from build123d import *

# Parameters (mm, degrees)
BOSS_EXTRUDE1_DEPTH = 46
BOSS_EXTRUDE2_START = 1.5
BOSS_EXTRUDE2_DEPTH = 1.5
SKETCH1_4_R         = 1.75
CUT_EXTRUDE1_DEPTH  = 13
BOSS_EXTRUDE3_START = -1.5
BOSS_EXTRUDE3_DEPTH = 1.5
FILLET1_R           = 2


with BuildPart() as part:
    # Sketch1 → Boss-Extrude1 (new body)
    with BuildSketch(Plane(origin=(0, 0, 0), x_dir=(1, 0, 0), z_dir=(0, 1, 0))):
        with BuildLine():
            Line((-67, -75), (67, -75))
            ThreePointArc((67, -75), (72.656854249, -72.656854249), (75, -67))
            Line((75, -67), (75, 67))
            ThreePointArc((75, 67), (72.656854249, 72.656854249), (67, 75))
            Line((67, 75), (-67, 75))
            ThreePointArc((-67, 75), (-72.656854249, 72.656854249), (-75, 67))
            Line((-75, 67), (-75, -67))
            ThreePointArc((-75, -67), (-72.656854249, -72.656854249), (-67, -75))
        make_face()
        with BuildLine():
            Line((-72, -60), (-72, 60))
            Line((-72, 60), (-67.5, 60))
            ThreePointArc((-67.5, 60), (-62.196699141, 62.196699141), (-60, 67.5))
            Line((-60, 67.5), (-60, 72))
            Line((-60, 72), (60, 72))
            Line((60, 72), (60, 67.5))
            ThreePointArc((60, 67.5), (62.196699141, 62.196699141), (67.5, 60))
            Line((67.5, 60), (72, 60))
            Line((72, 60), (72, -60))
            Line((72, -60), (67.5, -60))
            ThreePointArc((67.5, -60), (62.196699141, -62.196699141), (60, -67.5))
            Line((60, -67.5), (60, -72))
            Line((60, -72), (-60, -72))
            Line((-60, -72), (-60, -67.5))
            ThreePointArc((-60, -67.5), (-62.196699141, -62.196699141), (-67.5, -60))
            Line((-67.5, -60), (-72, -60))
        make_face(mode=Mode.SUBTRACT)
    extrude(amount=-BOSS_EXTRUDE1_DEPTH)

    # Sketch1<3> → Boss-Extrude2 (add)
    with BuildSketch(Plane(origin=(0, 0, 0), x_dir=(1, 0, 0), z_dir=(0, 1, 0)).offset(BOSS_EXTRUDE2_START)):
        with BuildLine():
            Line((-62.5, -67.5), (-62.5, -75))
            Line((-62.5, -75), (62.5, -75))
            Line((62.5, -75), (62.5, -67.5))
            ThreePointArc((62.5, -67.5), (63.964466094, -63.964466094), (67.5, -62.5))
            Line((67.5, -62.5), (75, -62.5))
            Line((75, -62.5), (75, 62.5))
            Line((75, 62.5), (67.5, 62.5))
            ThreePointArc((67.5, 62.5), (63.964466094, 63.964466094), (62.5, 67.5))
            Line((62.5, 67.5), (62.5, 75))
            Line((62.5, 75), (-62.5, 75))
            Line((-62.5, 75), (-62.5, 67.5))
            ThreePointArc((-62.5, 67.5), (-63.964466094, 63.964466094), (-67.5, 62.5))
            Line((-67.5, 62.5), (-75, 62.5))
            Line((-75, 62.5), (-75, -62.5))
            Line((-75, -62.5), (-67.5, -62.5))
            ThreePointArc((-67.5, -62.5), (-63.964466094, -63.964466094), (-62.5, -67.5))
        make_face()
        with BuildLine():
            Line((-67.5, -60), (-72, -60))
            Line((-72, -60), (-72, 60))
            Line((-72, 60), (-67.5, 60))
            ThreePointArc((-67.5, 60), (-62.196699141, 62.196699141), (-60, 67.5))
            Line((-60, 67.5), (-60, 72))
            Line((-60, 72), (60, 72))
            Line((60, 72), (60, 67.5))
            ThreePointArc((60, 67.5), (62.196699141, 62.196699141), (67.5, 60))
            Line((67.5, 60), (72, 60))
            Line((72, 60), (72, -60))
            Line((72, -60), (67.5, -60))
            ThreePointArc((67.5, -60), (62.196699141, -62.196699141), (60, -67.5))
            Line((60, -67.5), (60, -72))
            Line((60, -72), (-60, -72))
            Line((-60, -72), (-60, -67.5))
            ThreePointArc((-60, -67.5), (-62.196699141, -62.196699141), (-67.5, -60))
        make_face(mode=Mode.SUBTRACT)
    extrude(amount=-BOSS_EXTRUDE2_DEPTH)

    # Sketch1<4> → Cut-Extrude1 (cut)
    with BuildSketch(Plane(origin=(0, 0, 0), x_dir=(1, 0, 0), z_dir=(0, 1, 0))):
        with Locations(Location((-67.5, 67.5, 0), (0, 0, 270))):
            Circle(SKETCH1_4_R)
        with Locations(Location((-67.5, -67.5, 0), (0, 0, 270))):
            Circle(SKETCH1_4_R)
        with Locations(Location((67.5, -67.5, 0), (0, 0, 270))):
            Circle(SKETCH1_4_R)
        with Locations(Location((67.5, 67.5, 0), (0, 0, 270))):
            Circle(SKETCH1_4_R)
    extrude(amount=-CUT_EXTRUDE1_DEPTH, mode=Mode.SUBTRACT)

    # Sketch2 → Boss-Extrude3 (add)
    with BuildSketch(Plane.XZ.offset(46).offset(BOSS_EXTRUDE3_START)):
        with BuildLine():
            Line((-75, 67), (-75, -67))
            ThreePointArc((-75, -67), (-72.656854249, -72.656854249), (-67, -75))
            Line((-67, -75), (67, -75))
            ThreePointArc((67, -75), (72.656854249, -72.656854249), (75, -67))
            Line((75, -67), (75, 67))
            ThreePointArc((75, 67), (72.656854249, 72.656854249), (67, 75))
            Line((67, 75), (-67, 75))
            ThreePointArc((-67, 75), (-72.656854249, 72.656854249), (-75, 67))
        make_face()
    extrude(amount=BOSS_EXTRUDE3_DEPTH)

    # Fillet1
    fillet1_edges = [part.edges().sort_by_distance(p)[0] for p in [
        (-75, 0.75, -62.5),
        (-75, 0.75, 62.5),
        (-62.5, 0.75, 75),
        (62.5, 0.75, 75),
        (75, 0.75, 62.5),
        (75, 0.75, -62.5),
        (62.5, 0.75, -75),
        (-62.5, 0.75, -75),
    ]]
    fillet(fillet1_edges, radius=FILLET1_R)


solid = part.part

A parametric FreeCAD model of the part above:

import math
import FreeCAD as App
import Part
import Sketcher
from FreeCAD import Vector


def edges_at(feature, points):
    """Names of the edges that pass closest to the given points."""
    edges = feature.Shape.Edges
    near = lambda p: min(range(len(edges)), key=lambda i: edges[i].distToShape(Part.Vertex(*p))[0])
    return sorted({f"Edge{near(p) + 1}" for p in points})

doc = App.newDocument("Part")
body = doc.addObject("PartDesign::Body", "Body")

# Sketch on XZ plane
sketch1 = doc.addObject("Sketcher::SketchObject", "Sketch")
body.addObject(sketch1)
sketch1.AttachmentSupport = (doc.XZ_Plane, [""])
sketch1.MapMode = "FlatFace"
sketch1.addGeometry(Part.LineSegment(Vector(-67, 75, 0), Vector(67, 75, 0)), False)
sketch1.addGeometry(Part.ArcOfCircle(Part.Circle(Vector(67, 67, 0), Vector(0, 0, 1), 8), math.radians(0), math.radians(90)), False)
sketch1.addGeometry(Part.LineSegment(Vector(75, 67, 0), Vector(75, -67, 0)), False)
sketch1.addGeometry(Part.ArcOfCircle(Part.Circle(Vector(67, -67, 0), Vector(0, 0, 1), 8), math.radians(-90), math.radians(0)), False)
sketch1.addGeometry(Part.LineSegment(Vector(67, -75, 0), Vector(-67, -75, 0)), False)
sketch1.addGeometry(Part.ArcOfCircle(Part.Circle(Vector(-67, -67, 0), Vector(0, 0, 1), 8), math.radians(-180), math.radians(-90)), False)
sketch1.addGeometry(Part.LineSegment(Vector(-75, -67, 0), Vector(-75, 67, 0)), False)
sketch1.addGeometry(Part.ArcOfCircle(Part.Circle(Vector(-67, 67, 0), Vector(0, 0, 1), 8), math.radians(90), math.radians(180)), False)
sketch1.addGeometry(Part.LineSegment(Vector(-67.5, 60, 0), Vector(-72, 60, 0)), False)
sketch1.addGeometry(Part.LineSegment(Vector(-72, 60, 0), Vector(-72, -60, 0)), False)
sketch1.addGeometry(Part.LineSegment(Vector(-72, -60, 0), Vector(-67.5, -60, 0)), False)
sketch1.addGeometry(Part.ArcOfCircle(Part.Circle(Vector(-67.5, -67.5, 0), Vector(0, 0, 1), 7.5), math.radians(0), math.radians(90)), False)
sketch1.addGeometry(Part.LineSegment(Vector(-60, -67.5, 0), Vector(-60, -72, 0)), False)
sketch1.addGeometry(Part.LineSegment(Vector(-60, -72, 0), Vector(60, -72, 0)), False)
sketch1.addGeometry(Part.LineSegment(Vector(60, -72, 0), Vector(60, -67.5, 0)), False)
sketch1.addGeometry(Part.ArcOfCircle(Part.Circle(Vector(67.5, -67.5, 0), Vector(0, 0, 1), 7.5), math.radians(90), math.radians(180)), False)
sketch1.addGeometry(Part.LineSegment(Vector(67.5, -60, 0), Vector(72, -60, 0)), False)
sketch1.addGeometry(Part.LineSegment(Vector(72, -60, 0), Vector(72, 60, 0)), False)
sketch1.addGeometry(Part.LineSegment(Vector(72, 60, 0), Vector(67.5, 60, 0)), False)
sketch1.addGeometry(Part.ArcOfCircle(Part.Circle(Vector(67.5, 67.5, 0), Vector(0, 0, 1), 7.5), math.radians(180), math.radians(270)), False)
sketch1.addGeometry(Part.LineSegment(Vector(60, 67.5, 0), Vector(60, 72, 0)), False)
sketch1.addGeometry(Part.LineSegment(Vector(60, 72, 0), Vector(-60, 72, 0)), False)
sketch1.addGeometry(Part.LineSegment(Vector(-60, 72, 0), Vector(-60, 67.5, 0)), False)
sketch1.addGeometry(Part.ArcOfCircle(Part.Circle(Vector(-67.5, 67.5, 0), Vector(0, 0, 1), 7.5), math.radians(-90), math.radians(0)), False)
sketch1.addConstraint(Sketcher.Constraint("Tangent", 0, 2, 1, 2))
sketch1.addConstraint(Sketcher.Constraint("Tangent", 1, 1, 2, 1))
sketch1.addConstraint(Sketcher.Constraint("Tangent", 2, 2, 3, 2))
sketch1.addConstraint(Sketcher.Constraint("Tangent", 3, 1, 4, 1))
sketch1.addConstraint(Sketcher.Constraint("Tangent", 4, 2, 5, 2))
sketch1.addConstraint(Sketcher.Constraint("Tangent", 5, 1, 6, 1))
sketch1.addConstraint(Sketcher.Constraint("Tangent", 6, 2, 7, 2))
sketch1.addConstraint(Sketcher.Constraint("Tangent", 7, 1, 0, 1))
sketch1.addConstraint(Sketcher.Constraint("Coincident", 8, 2, 9, 1))
sketch1.addConstraint(Sketcher.Constraint("Coincident", 9, 2, 10, 1))
sketch1.addConstraint(Sketcher.Constraint("Tangent", 10, 2, 11, 2))
sketch1.addConstraint(Sketcher.Constraint("Tangent", 11, 1, 12, 1))
sketch1.addConstraint(Sketcher.Constraint("Coincident", 12, 2, 13, 1))
sketch1.addConstraint(Sketcher.Constraint("Coincident", 13, 2, 14, 1))
sketch1.addConstraint(Sketcher.Constraint("Tangent", 14, 2, 15, 2))
sketch1.addConstraint(Sketcher.Constraint("Tangent", 15, 1, 16, 1))
sketch1.addConstraint(Sketcher.Constraint("Coincident", 16, 2, 17, 1))
sketch1.addConstraint(Sketcher.Constraint("Coincident", 17, 2, 18, 1))
sketch1.addConstraint(Sketcher.Constraint("Tangent", 18, 2, 19, 2))
sketch1.addConstraint(Sketcher.Constraint("Tangent", 19, 1, 20, 1))
sketch1.addConstraint(Sketcher.Constraint("Coincident", 20, 2, 21, 1))
sketch1.addConstraint(Sketcher.Constraint("Coincident", 21, 2, 22, 1))
sketch1.addConstraint(Sketcher.Constraint("Tangent", 22, 2, 23, 2))
sketch1.addConstraint(Sketcher.Constraint("Tangent", 23, 1, 8, 1))
sketch1.addConstraint(Sketcher.Constraint("Horizontal", 0))
sketch1.addConstraint(Sketcher.Constraint("Vertical", 2))
sketch1.addConstraint(Sketcher.Constraint("Horizontal", 4))
sketch1.addConstraint(Sketcher.Constraint("Vertical", 6))
sketch1.addConstraint(Sketcher.Constraint("Horizontal", 8))
sketch1.addConstraint(Sketcher.Constraint("Vertical", 9))
sketch1.addConstraint(Sketcher.Constraint("Horizontal", 10))
sketch1.addConstraint(Sketcher.Constraint("Vertical", 12))
sketch1.addConstraint(Sketcher.Constraint("Horizontal", 13))
sketch1.addConstraint(Sketcher.Constraint("Vertical", 14))
sketch1.addConstraint(Sketcher.Constraint("Horizontal", 16))
sketch1.addConstraint(Sketcher.Constraint("Vertical", 17))
sketch1.addConstraint(Sketcher.Constraint("Horizontal", 18))
sketch1.addConstraint(Sketcher.Constraint("Vertical", 20))
sketch1.addConstraint(Sketcher.Constraint("Horizontal", 21))
sketch1.addConstraint(Sketcher.Constraint("Vertical", 22))
sketch1.addConstraint(Sketcher.Constraint("Equal", 1, 3))
sketch1.addConstraint(Sketcher.Constraint("Equal", 3, 5))
sketch1.addConstraint(Sketcher.Constraint("Equal", 5, 7))
sketch1.addConstraint(Sketcher.Constraint("Equal", 11, 15))
sketch1.addConstraint(Sketcher.Constraint("Equal", 15, 19))
sketch1.addConstraint(Sketcher.Constraint("Equal", 19, 23))
sketch1.addConstraint(Sketcher.Constraint("Symmetric", 1, 3, 5, 3, -1, 1))
sketch1.addConstraint(Sketcher.Constraint("Symmetric", 11, 3, 19, 3, -1, 1))
sketch1.addConstraint(Sketcher.Constraint("Symmetric", 15, 3, 23, 3, -1, 1))
sketch1.addConstraint(Sketcher.Constraint("Symmetric", 11, 3, 15, 3, -2))
sketch1.addConstraint(Sketcher.Constraint("Equal", 10, 16))
sketch1.addConstraint(Sketcher.Constraint("Equal", 4, 2))
sketch1.addConstraint(Sketcher.Constraint("Equal", 21, 9))
sketch1.addConstraint(Sketcher.Constraint("Equal", 18, 12))
sketch1.addConstraint(Sketcher.Constraint("Equal", 14, 20))
sketch1.addConstraint(Sketcher.Constraint("Radius", 1, 8.0))
sketch1.addConstraint(Sketcher.Constraint("Radius", 11, 7.5))
sketch1.addConstraint(Sketcher.Constraint("DistanceX", 0, 1, 0, 2, 134.0))
sketch1.addConstraint(Sketcher.Constraint("DistanceX", 13, 1, 13, 2, 120.0))
sketch1.addConstraint(Sketcher.Constraint("DistanceX", 8, 2, 8, 1, 4.5))
pad1 = doc.addObject("PartDesign::Pad", "Pad")
body.addObject(pad1)
pad1.Profile = sketch1
pad1.Length = 46

# Sketch on XZ plane
sketch2 = doc.addObject("Sketcher::SketchObject", "Sketch001")
body.addObject(sketch2)
sketch2.AttachmentSupport = (doc.XZ_Plane, [""])
sketch2.MapMode = "FlatFace"
sketch2.AttachmentOffset = App.Placement(Vector(0, 0, -1.5), App.Rotation())
sketch2.addGeometry(Part.LineSegment(Vector(-62.5, 67.5, 0), Vector(-62.5, 75, 0)), False)
sketch2.addGeometry(Part.LineSegment(Vector(-62.5, 75, 0), Vector(62.5, 75, 0)), False)
sketch2.addGeometry(Part.LineSegment(Vector(62.5, 75, 0), Vector(62.5, 67.5, 0)), False)
sketch2.addGeometry(Part.ArcOfCircle(Part.Circle(Vector(67.5, 67.5, 0), Vector(0, 0, 1), 5), math.radians(180), math.radians(270)), False)
sketch2.addGeometry(Part.LineSegment(Vector(67.5, 62.5, 0), Vector(75, 62.5, 0)), False)
sketch2.addGeometry(Part.LineSegment(Vector(75, 62.5, 0), Vector(75, -62.5, 0)), False)
sketch2.addGeometry(Part.LineSegment(Vector(75, -62.5, 0), Vector(67.5, -62.5, 0)), False)
sketch2.addGeometry(Part.ArcOfCircle(Part.Circle(Vector(67.5, -67.5, 0), Vector(0, 0, 1), 5), math.radians(90), math.radians(180)), False)
sketch2.addGeometry(Part.LineSegment(Vector(62.5, -67.5, 0), Vector(62.5, -75, 0)), False)
sketch2.addGeometry(Part.LineSegment(Vector(62.5, -75, 0), Vector(-62.5, -75, 0)), False)
sketch2.addGeometry(Part.LineSegment(Vector(-62.5, -75, 0), Vector(-62.5, -67.5, 0)), False)
sketch2.addGeometry(Part.ArcOfCircle(Part.Circle(Vector(-67.5, -67.5, 0), Vector(0, 0, 1), 5), math.radians(0), math.radians(90)), False)
sketch2.addGeometry(Part.LineSegment(Vector(-67.5, -62.5, 0), Vector(-75, -62.5, 0)), False)
sketch2.addGeometry(Part.LineSegment(Vector(-75, -62.5, 0), Vector(-75, 62.5, 0)), False)
sketch2.addGeometry(Part.LineSegment(Vector(-75, 62.5, 0), Vector(-67.5, 62.5, 0)), False)
sketch2.addGeometry(Part.ArcOfCircle(Part.Circle(Vector(-67.5, 67.5, 0), Vector(0, 0, 1), 5), math.radians(-90), math.radians(0)), False)
sketch2.addGeometry(Part.ArcOfCircle(Part.Circle(Vector(-67.5, 67.5, 0), Vector(0, 0, 1), 7.5), math.radians(-90), math.radians(0)), False)
sketch2.addGeometry(Part.LineSegment(Vector(-67.5, 60, 0), Vector(-72, 60, 0)), False)
sketch2.addGeometry(Part.LineSegment(Vector(-72, 60, 0), Vector(-72, -60, 0)), False)
sketch2.addGeometry(Part.LineSegment(Vector(-72, -60, 0), Vector(-67.5, -60, 0)), False)
sketch2.addGeometry(Part.ArcOfCircle(Part.Circle(Vector(-67.5, -67.5, 0), Vector(0, 0, 1), 7.5), math.radians(0), math.radians(90)), False)
sketch2.addGeometry(Part.LineSegment(Vector(-60, -67.5, 0), Vector(-60, -72, 0)), False)
sketch2.addGeometry(Part.LineSegment(Vector(-60, -72, 0), Vector(60, -72, 0)), False)
sketch2.addGeometry(Part.LineSegment(Vector(60, -72, 0), Vector(60, -67.5, 0)), False)
sketch2.addGeometry(Part.ArcOfCircle(Part.Circle(Vector(67.5, -67.5, 0), Vector(0, 0, 1), 7.5), math.radians(90), math.radians(180)), False)
sketch2.addGeometry(Part.LineSegment(Vector(67.5, -60, 0), Vector(72, -60, 0)), False)
sketch2.addGeometry(Part.LineSegment(Vector(72, -60, 0), Vector(72, 60, 0)), False)
sketch2.addGeometry(Part.LineSegment(Vector(72, 60, 0), Vector(67.5, 60, 0)), False)
sketch2.addGeometry(Part.ArcOfCircle(Part.Circle(Vector(67.5, 67.5, 0), Vector(0, 0, 1), 7.5), math.radians(180), math.radians(270)), False)
sketch2.addGeometry(Part.LineSegment(Vector(60, 67.5, 0), Vector(60, 72, 0)), False)
sketch2.addGeometry(Part.LineSegment(Vector(60, 72, 0), Vector(-60, 72, 0)), False)
sketch2.addGeometry(Part.LineSegment(Vector(-60, 72, 0), Vector(-60, 67.5, 0)), False)
sketch2.addConstraint(Sketcher.Constraint("Coincident", 0, 2, 1, 1))
sketch2.addConstraint(Sketcher.Constraint("Coincident", 1, 2, 2, 1))
sketch2.addConstraint(Sketcher.Constraint("Tangent", 2, 2, 3, 1))
sketch2.addConstraint(Sketcher.Constraint("Tangent", 3, 2, 4, 1))
sketch2.addConstraint(Sketcher.Constraint("Coincident", 4, 2, 5, 1))
sketch2.addConstraint(Sketcher.Constraint("Coincident", 5, 2, 6, 1))
sketch2.addConstraint(Sketcher.Constraint("Tangent", 6, 2, 7, 1))
sketch2.addConstraint(Sketcher.Constraint("Tangent", 7, 2, 8, 1))
sketch2.addConstraint(Sketcher.Constraint("Coincident", 8, 2, 9, 1))
sketch2.addConstraint(Sketcher.Constraint("Coincident", 9, 2, 10, 1))
sketch2.addConstraint(Sketcher.Constraint("Tangent", 10, 2, 11, 1))
sketch2.addConstraint(Sketcher.Constraint("Tangent", 11, 2, 12, 1))
sketch2.addConstraint(Sketcher.Constraint("Coincident", 12, 2, 13, 1))
sketch2.addConstraint(Sketcher.Constraint("Coincident", 13, 2, 14, 1))
sketch2.addConstraint(Sketcher.Constraint("Tangent", 14, 2, 15, 1))
sketch2.addConstraint(Sketcher.Constraint("Tangent", 15, 2, 0, 1))
sketch2.addConstraint(Sketcher.Constraint("Tangent", 16, 1, 17, 1))
sketch2.addConstraint(Sketcher.Constraint("Coincident", 17, 2, 18, 1))
sketch2.addConstraint(Sketcher.Constraint("Coincident", 18, 2, 19, 1))
sketch2.addConstraint(Sketcher.Constraint("Tangent", 19, 2, 20, 2))
sketch2.addConstraint(Sketcher.Constraint("Tangent", 20, 1, 21, 1))
sketch2.addConstraint(Sketcher.Constraint("Coincident", 21, 2, 22, 1))
sketch2.addConstraint(Sketcher.Constraint("Coincident", 22, 2, 23, 1))
sketch2.addConstraint(Sketcher.Constraint("Tangent", 23, 2, 24, 2))
sketch2.addConstraint(Sketcher.Constraint("Tangent", 24, 1, 25, 1))
sketch2.addConstraint(Sketcher.Constraint("Coincident", 25, 2, 26, 1))
sketch2.addConstraint(Sketcher.Constraint("Coincident", 26, 2, 27, 1))
sketch2.addConstraint(Sketcher.Constraint("Tangent", 27, 2, 28, 2))
sketch2.addConstraint(Sketcher.Constraint("Tangent", 28, 1, 29, 1))
sketch2.addConstraint(Sketcher.Constraint("Coincident", 29, 2, 30, 1))
sketch2.addConstraint(Sketcher.Constraint("Coincident", 30, 2, 31, 1))
sketch2.addConstraint(Sketcher.Constraint("Tangent", 31, 2, 16, 2))
sketch2.addConstraint(Sketcher.Constraint("Vertical", 0))
sketch2.addConstraint(Sketcher.Constraint("Horizontal", 1))
sketch2.addConstraint(Sketcher.Constraint("Vertical", 2))
sketch2.addConstraint(Sketcher.Constraint("Horizontal", 4))
sketch2.addConstraint(Sketcher.Constraint("Vertical", 5))
sketch2.addConstraint(Sketcher.Constraint("Horizontal", 6))
sketch2.addConstraint(Sketcher.Constraint("Vertical", 8))
sketch2.addConstraint(Sketcher.Constraint("Horizontal", 9))
sketch2.addConstraint(Sketcher.Constraint("Vertical", 10))
sketch2.addConstraint(Sketcher.Constraint("Horizontal", 12))
sketch2.addConstraint(Sketcher.Constraint("Vertical", 13))
sketch2.addConstraint(Sketcher.Constraint("Horizontal", 14))
sketch2.addConstraint(Sketcher.Constraint("Horizontal", 17))
sketch2.addConstraint(Sketcher.Constraint("Vertical", 18))
sketch2.addConstraint(Sketcher.Constraint("Horizontal", 19))
sketch2.addConstraint(Sketcher.Constraint("Vertical", 21))
sketch2.addConstraint(Sketcher.Constraint("Horizontal", 22))
sketch2.addConstraint(Sketcher.Constraint("Vertical", 23))
sketch2.addConstraint(Sketcher.Constraint("Horizontal", 25))
sketch2.addConstraint(Sketcher.Constraint("Vertical", 26))
sketch2.addConstraint(Sketcher.Constraint("Horizontal", 27))
sketch2.addConstraint(Sketcher.Constraint("Vertical", 29))
sketch2.addConstraint(Sketcher.Constraint("Horizontal", 30))
sketch2.addConstraint(Sketcher.Constraint("Vertical", 31))
sketch2.addConstraint(Sketcher.Constraint("Coincident", 16, 3, 15, 3))
sketch2.addConstraint(Sketcher.Constraint("Coincident", 20, 3, 11, 3))
sketch2.addConstraint(Sketcher.Constraint("Coincident", 24, 3, 7, 3))
sketch2.addConstraint(Sketcher.Constraint("Coincident", 28, 3, 3, 3))
sketch2.addConstraint(Sketcher.Constraint("Equal", 3, 7))
sketch2.addConstraint(Sketcher.Constraint("Equal", 7, 11))
sketch2.addConstraint(Sketcher.Constraint("Equal", 11, 15))
sketch2.addConstraint(Sketcher.Constraint("Equal", 16, 20))
sketch2.addConstraint(Sketcher.Constraint("Equal", 20, 24))
sketch2.addConstraint(Sketcher.Constraint("Equal", 24, 28))
sketch2.addConstraint(Sketcher.Constraint("Symmetric", 3, 3, 11, 3, -1, 1))
sketch2.addConstraint(Sketcher.Constraint("Symmetric", 7, 3, 15, 3, -1, 1))
sketch2.addConstraint(Sketcher.Constraint("Symmetric", 7, 3, 11, 3, -2))
sketch2.addConstraint(Sketcher.Constraint("Equal", 6, 12))
sketch2.addConstraint(Sketcher.Constraint("Equal", 19, 25))
sketch2.addConstraint(Sketcher.Constraint("Equal", 14, 0))
sketch2.addConstraint(Sketcher.Constraint("Equal", 9, 5))
sketch2.addConstraint(Sketcher.Constraint("Equal", 2, 8))
sketch2.addConstraint(Sketcher.Constraint("Equal", 27, 21))
sketch2.addConstraint(Sketcher.Constraint("Equal", 23, 29))
sketch2.addConstraint(Sketcher.Constraint("Radius", 3, 5.0))
sketch2.addConstraint(Sketcher.Constraint("Radius", 16, 7.5))
sketch2.addConstraint(Sketcher.Constraint("DistanceX", 1, 1, 1, 2, 125.0))
sketch2.addConstraint(Sketcher.Constraint("DistanceX", 4, 1, 4, 2, 7.5))
sketch2.addConstraint(Sketcher.Constraint("DistanceX", 17, 2, 17, 1, 4.5))
pad2 = doc.addObject("PartDesign::Pad", "Pad001")
body.addObject(pad2)
pad2.Profile = sketch2
pad2.Length = 1.5

# Sketch on XZ plane
sketch3 = doc.addObject("Sketcher::SketchObject", "Sketch002")
body.addObject(sketch3)
sketch3.AttachmentSupport = (doc.XZ_Plane, [""])
sketch3.MapMode = "FlatFace"
sketch3.addGeometry(Part.Circle(Vector(-67.5, -67.5, 0), Vector(0, 0, 1), 1.8), False)
sketch3.addGeometry(Part.Circle(Vector(-67.5, 67.5, 0), Vector(0, 0, 1), 1.8), False)
sketch3.addGeometry(Part.Circle(Vector(67.5, 67.5, 0), Vector(0, 0, 1), 1.8), False)
sketch3.addGeometry(Part.Circle(Vector(67.5, -67.5, 0), Vector(0, 0, 1), 1.8), False)
sketch3.addConstraint(Sketcher.Constraint("Equal", 0, 1))
sketch3.addConstraint(Sketcher.Constraint("Equal", 1, 2))
sketch3.addConstraint(Sketcher.Constraint("Equal", 2, 3))
sketch3.addConstraint(Sketcher.Constraint("Symmetric", 0, 3, 2, 3, -1, 1))
sketch3.addConstraint(Sketcher.Constraint("Symmetric", 1, 3, 3, 3, -1, 1))
sketch3.addConstraint(Sketcher.Constraint("Symmetric", 1, 3, 2, 3, -2))
sketch3.addConstraint(Sketcher.Constraint("Diameter", 0, 3.5))
sketch3.addConstraint(Sketcher.Constraint("DistanceY", 0, 3, 1, 3, 135.0))
sketch3.addConstraint(Sketcher.Constraint("DistanceX", 1, 3, 2, 3, 135.0))
pocket1 = doc.addObject("PartDesign::Pocket", "Pocket")
body.addObject(pocket1)
pocket1.Profile = sketch3
pocket1.Length = 13
pocket1.Reversed = True

# Sketch on XZ plane
sketch4 = doc.addObject("Sketcher::SketchObject", "Sketch003")
body.addObject(sketch4)
sketch4.AttachmentSupport = (doc.XZ_Plane, [""])
sketch4.MapMode = "FlatFace"
sketch4.AttachmentOffset = App.Placement(Vector(0, 0, 44.5), App.Rotation())
sketch4.addGeometry(Part.LineSegment(Vector(-75, 67, 0), Vector(-75, -67, 0)), False)
sketch4.addGeometry(Part.ArcOfCircle(Part.Circle(Vector(-67, -67, 0), Vector(0, 0, 1), 8), math.radians(-180), math.radians(-90)), False)
sketch4.addGeometry(Part.LineSegment(Vector(-67, -75, 0), Vector(67, -75, 0)), False)
sketch4.addGeometry(Part.ArcOfCircle(Part.Circle(Vector(67, -67, 0), Vector(0, 0, 1), 8), math.radians(-90), math.radians(0)), False)
sketch4.addGeometry(Part.LineSegment(Vector(75, -67, 0), Vector(75, 67, 0)), False)
sketch4.addGeometry(Part.ArcOfCircle(Part.Circle(Vector(67, 67, 0), Vector(0, 0, 1), 8), math.radians(0), math.radians(90)), False)
sketch4.addGeometry(Part.LineSegment(Vector(67, 75, 0), Vector(-67, 75, 0)), False)
sketch4.addGeometry(Part.ArcOfCircle(Part.Circle(Vector(-67, 67, 0), Vector(0, 0, 1), 8), math.radians(90), math.radians(180)), False)
sketch4.addConstraint(Sketcher.Constraint("Tangent", 0, 2, 1, 1))
sketch4.addConstraint(Sketcher.Constraint("Tangent", 1, 2, 2, 1))
sketch4.addConstraint(Sketcher.Constraint("Tangent", 2, 2, 3, 1))
sketch4.addConstraint(Sketcher.Constraint("Tangent", 3, 2, 4, 1))
sketch4.addConstraint(Sketcher.Constraint("Tangent", 4, 2, 5, 1))
sketch4.addConstraint(Sketcher.Constraint("Tangent", 5, 2, 6, 1))
sketch4.addConstraint(Sketcher.Constraint("Tangent", 6, 2, 7, 1))
sketch4.addConstraint(Sketcher.Constraint("Tangent", 7, 2, 0, 1))
sketch4.addConstraint(Sketcher.Constraint("Vertical", 0))
sketch4.addConstraint(Sketcher.Constraint("Horizontal", 2))
sketch4.addConstraint(Sketcher.Constraint("Vertical", 4))
sketch4.addConstraint(Sketcher.Constraint("Horizontal", 6))
sketch4.addConstraint(Sketcher.Constraint("Equal", 1, 3))
sketch4.addConstraint(Sketcher.Constraint("Equal", 3, 5))
sketch4.addConstraint(Sketcher.Constraint("Equal", 5, 7))
sketch4.addConstraint(Sketcher.Constraint("Symmetric", 1, 3, 5, 3, -1, 1))
sketch4.addConstraint(Sketcher.Constraint("Equal", 6, 0))
sketch4.addConstraint(Sketcher.Constraint("Radius", 1, 8.0))
sketch4.addConstraint(Sketcher.Constraint("DistanceX", 2, 1, 2, 2, 134.0))
pad3 = doc.addObject("PartDesign::Pad", "Pad002")
body.addObject(pad3)
pad3.Profile = sketch4
pad3.Length = 1.5
doc.recompute()

fillet = doc.addObject("PartDesign::Fillet", "Fillet")
body.addObject(fillet)
fillet.Base = (pad3, edges_at(pad3, [
    (-75, 0.75, -62.5),
    (-75, 0.75, 62.5),
    (-62.5, 0.75, 75),
    (62.5, 0.75, 75),
    (75, 0.75, 62.5),
    (75, 0.75, -62.5),
    (62.5, 0.75, -75),
    (-62.5, 0.75, -75),
]))
fillet.Radius = 2

doc.recompute()
